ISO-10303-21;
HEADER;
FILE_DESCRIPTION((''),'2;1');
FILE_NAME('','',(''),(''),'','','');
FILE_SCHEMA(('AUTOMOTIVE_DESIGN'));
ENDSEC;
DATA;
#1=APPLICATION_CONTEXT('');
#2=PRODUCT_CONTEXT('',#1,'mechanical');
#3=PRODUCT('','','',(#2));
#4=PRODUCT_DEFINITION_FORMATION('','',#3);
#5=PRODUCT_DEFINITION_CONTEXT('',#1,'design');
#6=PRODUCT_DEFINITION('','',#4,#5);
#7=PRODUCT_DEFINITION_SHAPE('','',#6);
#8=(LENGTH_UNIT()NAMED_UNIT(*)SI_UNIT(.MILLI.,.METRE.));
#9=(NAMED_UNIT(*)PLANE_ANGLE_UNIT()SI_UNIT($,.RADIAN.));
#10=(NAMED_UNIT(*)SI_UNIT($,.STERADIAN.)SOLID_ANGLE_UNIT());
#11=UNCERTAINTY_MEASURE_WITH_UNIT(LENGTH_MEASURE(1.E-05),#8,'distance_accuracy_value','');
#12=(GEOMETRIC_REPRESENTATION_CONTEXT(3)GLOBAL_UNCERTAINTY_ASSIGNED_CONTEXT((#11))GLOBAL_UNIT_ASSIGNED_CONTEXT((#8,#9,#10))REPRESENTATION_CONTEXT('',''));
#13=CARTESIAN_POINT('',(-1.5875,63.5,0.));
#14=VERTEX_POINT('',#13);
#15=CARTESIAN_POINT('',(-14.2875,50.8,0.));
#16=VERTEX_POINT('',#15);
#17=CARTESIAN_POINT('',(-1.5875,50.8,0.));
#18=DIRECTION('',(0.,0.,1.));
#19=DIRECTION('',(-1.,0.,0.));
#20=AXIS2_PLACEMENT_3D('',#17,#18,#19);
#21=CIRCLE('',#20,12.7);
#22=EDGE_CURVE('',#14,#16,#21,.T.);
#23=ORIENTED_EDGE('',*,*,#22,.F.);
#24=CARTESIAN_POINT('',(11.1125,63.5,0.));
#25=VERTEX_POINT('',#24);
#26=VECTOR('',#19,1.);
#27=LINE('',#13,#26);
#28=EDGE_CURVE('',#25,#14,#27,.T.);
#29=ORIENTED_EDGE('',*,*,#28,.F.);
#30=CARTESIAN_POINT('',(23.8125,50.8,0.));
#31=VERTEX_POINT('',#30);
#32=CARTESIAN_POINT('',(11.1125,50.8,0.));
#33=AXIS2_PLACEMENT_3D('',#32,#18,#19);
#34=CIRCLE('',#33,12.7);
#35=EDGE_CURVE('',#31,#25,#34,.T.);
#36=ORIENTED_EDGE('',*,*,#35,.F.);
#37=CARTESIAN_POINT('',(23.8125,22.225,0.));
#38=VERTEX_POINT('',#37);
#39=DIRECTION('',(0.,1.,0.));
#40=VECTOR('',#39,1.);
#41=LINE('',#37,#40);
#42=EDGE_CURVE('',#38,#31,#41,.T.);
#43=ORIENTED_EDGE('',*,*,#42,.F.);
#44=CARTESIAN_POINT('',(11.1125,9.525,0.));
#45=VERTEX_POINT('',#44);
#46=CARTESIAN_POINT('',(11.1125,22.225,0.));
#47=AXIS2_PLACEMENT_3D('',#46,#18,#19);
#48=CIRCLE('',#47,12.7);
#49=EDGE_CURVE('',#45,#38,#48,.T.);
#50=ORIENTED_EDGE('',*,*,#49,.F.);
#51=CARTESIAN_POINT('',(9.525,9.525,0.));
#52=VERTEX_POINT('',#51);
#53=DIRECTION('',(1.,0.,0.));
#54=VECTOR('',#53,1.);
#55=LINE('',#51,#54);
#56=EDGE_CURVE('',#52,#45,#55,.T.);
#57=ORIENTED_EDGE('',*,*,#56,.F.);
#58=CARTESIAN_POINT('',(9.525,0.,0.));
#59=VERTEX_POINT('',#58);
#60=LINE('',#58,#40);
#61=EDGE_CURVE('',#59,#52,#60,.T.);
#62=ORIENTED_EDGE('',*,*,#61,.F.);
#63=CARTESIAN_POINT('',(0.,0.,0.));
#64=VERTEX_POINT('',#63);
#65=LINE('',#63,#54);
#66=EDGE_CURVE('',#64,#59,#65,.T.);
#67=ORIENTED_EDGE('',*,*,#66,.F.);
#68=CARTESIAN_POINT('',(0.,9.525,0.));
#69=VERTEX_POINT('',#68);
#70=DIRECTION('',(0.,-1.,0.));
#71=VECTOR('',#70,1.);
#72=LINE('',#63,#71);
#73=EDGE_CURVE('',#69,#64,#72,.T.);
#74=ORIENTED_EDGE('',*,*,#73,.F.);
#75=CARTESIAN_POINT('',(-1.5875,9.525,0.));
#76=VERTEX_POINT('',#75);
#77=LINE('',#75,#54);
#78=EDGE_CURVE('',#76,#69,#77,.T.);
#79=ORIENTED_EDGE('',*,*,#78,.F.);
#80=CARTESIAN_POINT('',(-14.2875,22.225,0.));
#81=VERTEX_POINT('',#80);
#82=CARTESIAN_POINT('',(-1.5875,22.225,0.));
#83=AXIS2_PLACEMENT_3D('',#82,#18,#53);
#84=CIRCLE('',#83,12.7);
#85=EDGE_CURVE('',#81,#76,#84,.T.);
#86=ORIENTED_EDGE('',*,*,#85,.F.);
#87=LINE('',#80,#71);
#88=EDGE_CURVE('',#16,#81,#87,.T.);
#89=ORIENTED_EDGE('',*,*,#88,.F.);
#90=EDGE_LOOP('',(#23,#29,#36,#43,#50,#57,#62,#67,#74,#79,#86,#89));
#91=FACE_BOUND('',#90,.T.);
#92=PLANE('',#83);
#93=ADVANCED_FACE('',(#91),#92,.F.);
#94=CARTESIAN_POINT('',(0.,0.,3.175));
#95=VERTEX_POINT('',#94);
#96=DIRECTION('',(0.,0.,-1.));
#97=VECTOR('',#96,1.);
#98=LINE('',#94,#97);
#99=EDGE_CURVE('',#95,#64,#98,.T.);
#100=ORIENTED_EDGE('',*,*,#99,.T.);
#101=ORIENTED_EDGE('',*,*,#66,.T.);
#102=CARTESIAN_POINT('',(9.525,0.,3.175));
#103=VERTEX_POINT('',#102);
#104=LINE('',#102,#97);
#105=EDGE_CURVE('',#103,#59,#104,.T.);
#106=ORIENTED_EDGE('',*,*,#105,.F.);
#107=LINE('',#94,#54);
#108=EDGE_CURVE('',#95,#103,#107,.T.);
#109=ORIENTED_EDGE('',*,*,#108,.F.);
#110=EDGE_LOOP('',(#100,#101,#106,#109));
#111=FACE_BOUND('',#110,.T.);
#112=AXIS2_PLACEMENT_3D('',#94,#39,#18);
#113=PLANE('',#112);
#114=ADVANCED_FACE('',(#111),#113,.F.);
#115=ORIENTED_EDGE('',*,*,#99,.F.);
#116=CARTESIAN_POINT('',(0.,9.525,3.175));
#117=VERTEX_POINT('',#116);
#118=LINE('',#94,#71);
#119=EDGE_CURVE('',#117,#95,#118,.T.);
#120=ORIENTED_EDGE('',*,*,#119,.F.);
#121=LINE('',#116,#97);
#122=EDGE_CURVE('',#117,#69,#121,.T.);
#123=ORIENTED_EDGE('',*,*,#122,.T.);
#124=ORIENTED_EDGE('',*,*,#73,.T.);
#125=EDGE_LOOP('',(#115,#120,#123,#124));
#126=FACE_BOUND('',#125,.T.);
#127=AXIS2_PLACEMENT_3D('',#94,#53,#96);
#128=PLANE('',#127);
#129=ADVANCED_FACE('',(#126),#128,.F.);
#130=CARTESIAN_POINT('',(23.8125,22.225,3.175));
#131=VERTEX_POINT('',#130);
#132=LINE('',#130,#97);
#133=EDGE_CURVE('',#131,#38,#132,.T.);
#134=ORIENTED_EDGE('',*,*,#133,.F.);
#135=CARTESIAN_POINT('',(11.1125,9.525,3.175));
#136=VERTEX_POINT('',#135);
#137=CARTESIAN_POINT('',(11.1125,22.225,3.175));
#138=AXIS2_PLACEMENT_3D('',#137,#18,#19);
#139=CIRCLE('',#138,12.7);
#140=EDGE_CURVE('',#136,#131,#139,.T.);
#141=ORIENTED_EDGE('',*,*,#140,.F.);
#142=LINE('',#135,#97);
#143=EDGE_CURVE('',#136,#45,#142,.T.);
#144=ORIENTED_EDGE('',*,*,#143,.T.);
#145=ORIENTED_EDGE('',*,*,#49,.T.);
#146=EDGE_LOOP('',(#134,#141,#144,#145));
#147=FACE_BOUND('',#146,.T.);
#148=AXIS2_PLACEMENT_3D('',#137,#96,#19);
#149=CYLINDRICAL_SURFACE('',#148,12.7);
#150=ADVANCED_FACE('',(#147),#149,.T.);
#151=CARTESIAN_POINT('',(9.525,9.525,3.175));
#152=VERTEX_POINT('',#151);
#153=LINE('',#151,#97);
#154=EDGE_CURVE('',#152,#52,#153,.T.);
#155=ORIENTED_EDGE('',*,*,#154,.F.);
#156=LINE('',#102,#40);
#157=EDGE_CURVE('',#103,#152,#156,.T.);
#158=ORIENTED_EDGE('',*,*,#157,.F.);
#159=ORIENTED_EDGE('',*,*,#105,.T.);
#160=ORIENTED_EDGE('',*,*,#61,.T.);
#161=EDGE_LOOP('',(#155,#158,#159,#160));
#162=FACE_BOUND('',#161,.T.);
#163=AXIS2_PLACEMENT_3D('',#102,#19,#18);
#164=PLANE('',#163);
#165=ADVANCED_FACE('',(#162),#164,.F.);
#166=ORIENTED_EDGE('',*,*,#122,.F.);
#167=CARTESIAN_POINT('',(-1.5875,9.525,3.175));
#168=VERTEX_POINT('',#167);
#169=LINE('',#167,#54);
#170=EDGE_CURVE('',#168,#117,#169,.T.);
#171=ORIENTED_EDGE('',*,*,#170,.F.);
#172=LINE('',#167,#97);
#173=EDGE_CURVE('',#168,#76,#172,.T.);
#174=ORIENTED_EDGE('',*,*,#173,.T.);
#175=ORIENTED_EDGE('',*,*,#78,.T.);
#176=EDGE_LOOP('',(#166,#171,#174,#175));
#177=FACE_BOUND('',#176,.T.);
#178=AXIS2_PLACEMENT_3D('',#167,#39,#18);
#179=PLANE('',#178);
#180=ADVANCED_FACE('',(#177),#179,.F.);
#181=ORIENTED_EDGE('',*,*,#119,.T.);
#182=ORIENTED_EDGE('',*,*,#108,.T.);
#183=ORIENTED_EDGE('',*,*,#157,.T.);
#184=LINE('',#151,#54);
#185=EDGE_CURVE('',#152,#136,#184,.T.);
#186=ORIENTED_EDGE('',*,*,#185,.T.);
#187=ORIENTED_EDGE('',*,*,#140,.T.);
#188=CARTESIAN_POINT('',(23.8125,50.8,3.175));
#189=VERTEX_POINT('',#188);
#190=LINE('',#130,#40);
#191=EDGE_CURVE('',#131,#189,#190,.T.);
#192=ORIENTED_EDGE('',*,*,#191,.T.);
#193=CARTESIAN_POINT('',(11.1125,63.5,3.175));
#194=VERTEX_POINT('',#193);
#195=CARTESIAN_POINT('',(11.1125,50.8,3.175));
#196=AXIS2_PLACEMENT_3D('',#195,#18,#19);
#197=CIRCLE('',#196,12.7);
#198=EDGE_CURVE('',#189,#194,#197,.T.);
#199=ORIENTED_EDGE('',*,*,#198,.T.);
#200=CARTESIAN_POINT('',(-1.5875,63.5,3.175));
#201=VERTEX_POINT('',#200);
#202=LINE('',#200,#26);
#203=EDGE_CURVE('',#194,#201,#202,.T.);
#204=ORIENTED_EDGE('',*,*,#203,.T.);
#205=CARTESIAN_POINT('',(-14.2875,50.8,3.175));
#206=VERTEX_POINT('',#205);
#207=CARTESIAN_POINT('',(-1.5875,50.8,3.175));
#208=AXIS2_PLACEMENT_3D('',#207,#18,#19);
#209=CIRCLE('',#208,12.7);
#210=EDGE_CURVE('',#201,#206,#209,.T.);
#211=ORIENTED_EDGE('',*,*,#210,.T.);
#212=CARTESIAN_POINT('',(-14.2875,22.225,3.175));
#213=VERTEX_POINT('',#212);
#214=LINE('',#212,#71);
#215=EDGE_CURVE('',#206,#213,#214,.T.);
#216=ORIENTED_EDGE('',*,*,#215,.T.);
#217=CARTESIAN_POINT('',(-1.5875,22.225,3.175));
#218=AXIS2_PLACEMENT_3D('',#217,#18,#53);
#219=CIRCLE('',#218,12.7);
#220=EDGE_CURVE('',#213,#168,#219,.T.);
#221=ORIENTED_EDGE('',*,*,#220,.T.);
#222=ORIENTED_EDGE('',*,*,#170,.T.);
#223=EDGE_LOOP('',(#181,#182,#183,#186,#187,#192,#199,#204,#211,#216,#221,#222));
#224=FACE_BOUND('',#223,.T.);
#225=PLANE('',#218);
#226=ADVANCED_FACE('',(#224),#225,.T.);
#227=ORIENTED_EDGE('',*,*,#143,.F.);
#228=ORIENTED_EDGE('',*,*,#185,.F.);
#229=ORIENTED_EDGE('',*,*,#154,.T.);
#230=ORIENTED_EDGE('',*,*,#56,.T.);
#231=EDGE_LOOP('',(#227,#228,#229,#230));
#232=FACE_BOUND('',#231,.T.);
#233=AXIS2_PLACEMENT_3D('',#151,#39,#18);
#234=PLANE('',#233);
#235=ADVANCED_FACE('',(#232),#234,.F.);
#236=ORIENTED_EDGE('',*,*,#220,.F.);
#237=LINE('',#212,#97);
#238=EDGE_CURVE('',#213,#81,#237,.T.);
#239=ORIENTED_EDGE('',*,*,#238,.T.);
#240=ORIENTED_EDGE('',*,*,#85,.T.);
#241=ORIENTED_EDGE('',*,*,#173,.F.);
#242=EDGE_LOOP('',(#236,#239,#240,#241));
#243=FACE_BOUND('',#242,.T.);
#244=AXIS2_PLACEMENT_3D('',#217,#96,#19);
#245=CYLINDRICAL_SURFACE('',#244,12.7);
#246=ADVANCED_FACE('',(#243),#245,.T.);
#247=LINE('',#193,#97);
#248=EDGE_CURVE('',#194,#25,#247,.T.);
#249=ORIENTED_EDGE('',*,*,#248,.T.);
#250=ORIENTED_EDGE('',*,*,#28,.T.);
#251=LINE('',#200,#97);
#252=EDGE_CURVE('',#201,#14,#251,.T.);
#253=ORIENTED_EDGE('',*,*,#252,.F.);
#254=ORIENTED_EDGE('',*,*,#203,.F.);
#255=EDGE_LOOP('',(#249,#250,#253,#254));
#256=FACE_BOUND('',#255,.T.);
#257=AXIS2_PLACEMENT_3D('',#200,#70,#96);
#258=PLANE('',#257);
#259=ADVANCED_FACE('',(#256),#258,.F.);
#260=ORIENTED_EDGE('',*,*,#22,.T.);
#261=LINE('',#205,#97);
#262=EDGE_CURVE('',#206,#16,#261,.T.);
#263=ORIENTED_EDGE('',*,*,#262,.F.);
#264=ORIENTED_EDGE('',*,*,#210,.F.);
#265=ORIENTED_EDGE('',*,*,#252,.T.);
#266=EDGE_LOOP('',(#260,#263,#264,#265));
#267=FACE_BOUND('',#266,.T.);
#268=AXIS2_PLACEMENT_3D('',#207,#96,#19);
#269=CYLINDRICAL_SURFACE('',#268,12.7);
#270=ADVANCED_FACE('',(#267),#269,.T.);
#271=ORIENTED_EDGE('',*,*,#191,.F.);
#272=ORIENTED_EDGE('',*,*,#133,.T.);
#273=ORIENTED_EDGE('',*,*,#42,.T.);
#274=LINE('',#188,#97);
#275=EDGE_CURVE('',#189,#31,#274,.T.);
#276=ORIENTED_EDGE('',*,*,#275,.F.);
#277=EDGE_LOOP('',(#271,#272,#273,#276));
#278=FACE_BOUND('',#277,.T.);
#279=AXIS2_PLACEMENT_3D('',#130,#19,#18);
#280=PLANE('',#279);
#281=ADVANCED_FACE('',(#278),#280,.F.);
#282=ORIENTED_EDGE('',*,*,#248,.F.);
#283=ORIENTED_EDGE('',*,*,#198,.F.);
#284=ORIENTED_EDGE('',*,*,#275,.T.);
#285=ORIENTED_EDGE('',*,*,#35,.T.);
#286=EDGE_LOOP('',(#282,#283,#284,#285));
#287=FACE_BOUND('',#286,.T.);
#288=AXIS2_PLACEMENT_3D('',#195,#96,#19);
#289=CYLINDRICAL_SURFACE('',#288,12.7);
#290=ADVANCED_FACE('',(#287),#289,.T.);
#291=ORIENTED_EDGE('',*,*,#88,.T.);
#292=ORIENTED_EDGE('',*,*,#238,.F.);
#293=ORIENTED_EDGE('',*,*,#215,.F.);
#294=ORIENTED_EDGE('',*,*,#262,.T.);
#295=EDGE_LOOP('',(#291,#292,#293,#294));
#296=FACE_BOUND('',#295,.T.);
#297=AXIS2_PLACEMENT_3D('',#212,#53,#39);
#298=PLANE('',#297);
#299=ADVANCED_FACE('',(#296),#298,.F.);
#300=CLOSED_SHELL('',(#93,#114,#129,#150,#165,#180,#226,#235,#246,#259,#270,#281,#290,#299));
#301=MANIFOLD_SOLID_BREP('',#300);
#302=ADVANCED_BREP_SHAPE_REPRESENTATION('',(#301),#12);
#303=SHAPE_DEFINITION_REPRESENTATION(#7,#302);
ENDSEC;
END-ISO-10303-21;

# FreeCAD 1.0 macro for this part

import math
import FreeCAD as App
import Part
import Sketcher
from FreeCAD import Vector
Q = App.Units.Quantity

doc = App.newDocument("Part")
params = doc.addObject("Spreadsheet::Sheet", "Params")
for row, (alias, value) in enumerate([
    ("sketch1_radius", "0.5 in"),
    ("sketch1_width", "0.5 in"),
    ("sketch1_width2", "0.0625 in"),
    ("pad1_length", "0.125 in"),
], start=1):
    params.set(f"A{row}", alias)
    params.set(f"B{row}", "=" + value)
    params.setAlias(f"B{row}", alias)

body = doc.addObject("PartDesign::Body", "Body")

# Sketch on XY plane
sketch1 = doc.addObject("Sketcher::SketchObject", "Sketch")
body.addObject(sketch1)
sketch1.AttachmentSupport = (doc.XY_Plane, [""])
sketch1.MapMode = "FlatFace"
sketch1.addGeometry(Part.LineSegment(Vector(9.525, 9.525, 0), Vector(11.1125, 9.525, 0)), False)
sketch1.addGeometry(Part.ArcOfCircle(Part.Circle(Vector(11.1125, 22.225, 0), Vector(0, 0, 1), 12.7), math.radians(-90), math.radians(0)), False)
sketch1.addGeometry(Part.LineSegment(Vector(23.8125, 22.225, 0), Vector(23.8125, 50.8, 0)), False)
sketch1.addGeometry(Part.ArcOfCircle(Part.Circle(Vector(11.1125, 50.8, 0), Vector(0, 0, 1), 12.7), math.radians(0), math.radians(90)), False)
sketch1.addGeometry(Part.LineSegment(Vector(11.1125, 63.5, 0), Vector(-1.5875, 63.5, 0)), False)
sketch1.addGeometry(Part.ArcOfCircle(Part.Circle(Vector(-1.5875, 50.8, 0), Vector(0, 0, 1), 12.7), math.radians(90), math.radians(180)), False)
sketch1.addGeometry(Part.LineSegment(Vector(-14.2875, 50.8, 0), Vector(-14.2875, 22.225, 0)), False)
sketch1.addGeometry(Part.ArcOfCircle(Part.Circle(Vector(-1.5875, 22.225, 0), Vector(0, 0, 1), 12.7), math.radians(180), math.radians(270)), False)
sketch1.addGeometry(Part.LineSegment(Vector(-1.5875, 9.525, 0), Vector(0, 9.525, 0)), False)
sketch1.addGeometry(Part.LineSegment(Vector(0, 9.525, 0), Vector(0, 0, 0)), False)
sketch1.addGeometry(Part.LineSegment(Vector(0, 0, 0), Vector(9.525, 0, 0)), False)
sketch1.addGeometry(Part.LineSegment(Vector(9.525, 0, 0), Vector(9.525, 9.525, 0)), False)
sketch1.addConstraint(Sketcher.Constraint("Tangent", 0, 2, 1, 1))
sketch1.addConstraint(Sketcher.Constraint("Tangent", 1, 2, 2, 1))
sketch1.addConstraint(Sketcher.Constraint("Tangent", 2, 2, 3, 1))
sketch1.addConstraint(Sketcher.Constraint("Tangent", 3, 2, 4, 1))
sketch1.addConstraint(Sketcher.Constraint("Tangent", 4, 2, 5, 1))
sketch1.addConstraint(Sketcher.Constraint("Tangent", 5, 2, 6, 1))
sketch1.addConstraint(Sketcher.Constraint("Tangent", 6, 2, 7, 1))
sketch1.addConstraint(Sketcher.Constraint("Tangent", 7, 2, 8, 1))
sketch1.addConstraint(Sketcher.Constraint("Coincident", 8, 2, 9, 1))
sketch1.addConstraint(Sketcher.Constraint("Coincident", 9, 2, 10, 1))
sketch1.addConstraint(Sketcher.Constraint("Coincident", 10, 2, 11, 1))
sketch1.addConstraint(Sketcher.Constraint("Coincident", 11, 2, 0, 1))
sketch1.addConstraint(Sketcher.Constraint("Horizontal", 0))
sketch1.addConstraint(Sketcher.Constraint("Vertical", 2))
sketch1.addConstraint(Sketcher.Constraint("Horizontal", 4))
sketch1.addConstraint(Sketcher.Constraint("Vertical", 6))
sketch1.addConstraint(Sketcher.Constraint("Horizontal", 8))
sketch1.addConstraint(Sketcher.Constraint("Vertical", 9))
sketch1.addConstraint(Sketcher.Constraint("Horizontal", 10))
sketch1.addConstraint(Sketcher.Constraint("Vertical", 11))
sketch1.addConstraint(Sketcher.Constraint("Coincident", 9, 2, -1, 1))
sketch1.addConstraint(Sketcher.Constraint("Equal", 1, 3))
sketch1.addConstraint(Sketcher.Constraint("Equal", 3, 5))
sketch1.addConstraint(Sketcher.Constraint("Equal", 5, 7))
sketch1.addConstraint(Sketcher.Constraint("Horizontal", 1, 3, 7, 3))
sketch1.addConstraint(Sketcher.Constraint("Equal", 0, 8))
sketch1.addConstraint(Sketcher.Constraint("Equal", 10, 9))
sketch1.addConstraint(Sketcher.Constraint("Radius", 1, Q("0.5 in")))
sketch1.addConstraint(Sketcher.Constraint("DistanceX", 4, 2, 4, 1, Q("0.5 in")))
sketch1.addConstraint(Sketcher.Constraint("DistanceY", -1, 1, 3, 3, Q("2 in")))
sketch1.addConstraint(Sketcher.Constraint("DistanceX", 0, 1, 0, 2, Q("0.0625 in")))
sketch1.setExpression("Constraints[27]", "Params.sketch1_radius")
sketch1.setExpression("Constraints[28]", "Params.sketch1_width")
sketch1.setExpression("Constraints[30]", "Params.sketch1_width2")
pad1 = doc.addObject("PartDesign::Pad", "Pad")
body.addObject(pad1)
pad1.Profile = sketch1
pad1.setExpression("Length", "Params.pad1_length")

doc.recompute()
